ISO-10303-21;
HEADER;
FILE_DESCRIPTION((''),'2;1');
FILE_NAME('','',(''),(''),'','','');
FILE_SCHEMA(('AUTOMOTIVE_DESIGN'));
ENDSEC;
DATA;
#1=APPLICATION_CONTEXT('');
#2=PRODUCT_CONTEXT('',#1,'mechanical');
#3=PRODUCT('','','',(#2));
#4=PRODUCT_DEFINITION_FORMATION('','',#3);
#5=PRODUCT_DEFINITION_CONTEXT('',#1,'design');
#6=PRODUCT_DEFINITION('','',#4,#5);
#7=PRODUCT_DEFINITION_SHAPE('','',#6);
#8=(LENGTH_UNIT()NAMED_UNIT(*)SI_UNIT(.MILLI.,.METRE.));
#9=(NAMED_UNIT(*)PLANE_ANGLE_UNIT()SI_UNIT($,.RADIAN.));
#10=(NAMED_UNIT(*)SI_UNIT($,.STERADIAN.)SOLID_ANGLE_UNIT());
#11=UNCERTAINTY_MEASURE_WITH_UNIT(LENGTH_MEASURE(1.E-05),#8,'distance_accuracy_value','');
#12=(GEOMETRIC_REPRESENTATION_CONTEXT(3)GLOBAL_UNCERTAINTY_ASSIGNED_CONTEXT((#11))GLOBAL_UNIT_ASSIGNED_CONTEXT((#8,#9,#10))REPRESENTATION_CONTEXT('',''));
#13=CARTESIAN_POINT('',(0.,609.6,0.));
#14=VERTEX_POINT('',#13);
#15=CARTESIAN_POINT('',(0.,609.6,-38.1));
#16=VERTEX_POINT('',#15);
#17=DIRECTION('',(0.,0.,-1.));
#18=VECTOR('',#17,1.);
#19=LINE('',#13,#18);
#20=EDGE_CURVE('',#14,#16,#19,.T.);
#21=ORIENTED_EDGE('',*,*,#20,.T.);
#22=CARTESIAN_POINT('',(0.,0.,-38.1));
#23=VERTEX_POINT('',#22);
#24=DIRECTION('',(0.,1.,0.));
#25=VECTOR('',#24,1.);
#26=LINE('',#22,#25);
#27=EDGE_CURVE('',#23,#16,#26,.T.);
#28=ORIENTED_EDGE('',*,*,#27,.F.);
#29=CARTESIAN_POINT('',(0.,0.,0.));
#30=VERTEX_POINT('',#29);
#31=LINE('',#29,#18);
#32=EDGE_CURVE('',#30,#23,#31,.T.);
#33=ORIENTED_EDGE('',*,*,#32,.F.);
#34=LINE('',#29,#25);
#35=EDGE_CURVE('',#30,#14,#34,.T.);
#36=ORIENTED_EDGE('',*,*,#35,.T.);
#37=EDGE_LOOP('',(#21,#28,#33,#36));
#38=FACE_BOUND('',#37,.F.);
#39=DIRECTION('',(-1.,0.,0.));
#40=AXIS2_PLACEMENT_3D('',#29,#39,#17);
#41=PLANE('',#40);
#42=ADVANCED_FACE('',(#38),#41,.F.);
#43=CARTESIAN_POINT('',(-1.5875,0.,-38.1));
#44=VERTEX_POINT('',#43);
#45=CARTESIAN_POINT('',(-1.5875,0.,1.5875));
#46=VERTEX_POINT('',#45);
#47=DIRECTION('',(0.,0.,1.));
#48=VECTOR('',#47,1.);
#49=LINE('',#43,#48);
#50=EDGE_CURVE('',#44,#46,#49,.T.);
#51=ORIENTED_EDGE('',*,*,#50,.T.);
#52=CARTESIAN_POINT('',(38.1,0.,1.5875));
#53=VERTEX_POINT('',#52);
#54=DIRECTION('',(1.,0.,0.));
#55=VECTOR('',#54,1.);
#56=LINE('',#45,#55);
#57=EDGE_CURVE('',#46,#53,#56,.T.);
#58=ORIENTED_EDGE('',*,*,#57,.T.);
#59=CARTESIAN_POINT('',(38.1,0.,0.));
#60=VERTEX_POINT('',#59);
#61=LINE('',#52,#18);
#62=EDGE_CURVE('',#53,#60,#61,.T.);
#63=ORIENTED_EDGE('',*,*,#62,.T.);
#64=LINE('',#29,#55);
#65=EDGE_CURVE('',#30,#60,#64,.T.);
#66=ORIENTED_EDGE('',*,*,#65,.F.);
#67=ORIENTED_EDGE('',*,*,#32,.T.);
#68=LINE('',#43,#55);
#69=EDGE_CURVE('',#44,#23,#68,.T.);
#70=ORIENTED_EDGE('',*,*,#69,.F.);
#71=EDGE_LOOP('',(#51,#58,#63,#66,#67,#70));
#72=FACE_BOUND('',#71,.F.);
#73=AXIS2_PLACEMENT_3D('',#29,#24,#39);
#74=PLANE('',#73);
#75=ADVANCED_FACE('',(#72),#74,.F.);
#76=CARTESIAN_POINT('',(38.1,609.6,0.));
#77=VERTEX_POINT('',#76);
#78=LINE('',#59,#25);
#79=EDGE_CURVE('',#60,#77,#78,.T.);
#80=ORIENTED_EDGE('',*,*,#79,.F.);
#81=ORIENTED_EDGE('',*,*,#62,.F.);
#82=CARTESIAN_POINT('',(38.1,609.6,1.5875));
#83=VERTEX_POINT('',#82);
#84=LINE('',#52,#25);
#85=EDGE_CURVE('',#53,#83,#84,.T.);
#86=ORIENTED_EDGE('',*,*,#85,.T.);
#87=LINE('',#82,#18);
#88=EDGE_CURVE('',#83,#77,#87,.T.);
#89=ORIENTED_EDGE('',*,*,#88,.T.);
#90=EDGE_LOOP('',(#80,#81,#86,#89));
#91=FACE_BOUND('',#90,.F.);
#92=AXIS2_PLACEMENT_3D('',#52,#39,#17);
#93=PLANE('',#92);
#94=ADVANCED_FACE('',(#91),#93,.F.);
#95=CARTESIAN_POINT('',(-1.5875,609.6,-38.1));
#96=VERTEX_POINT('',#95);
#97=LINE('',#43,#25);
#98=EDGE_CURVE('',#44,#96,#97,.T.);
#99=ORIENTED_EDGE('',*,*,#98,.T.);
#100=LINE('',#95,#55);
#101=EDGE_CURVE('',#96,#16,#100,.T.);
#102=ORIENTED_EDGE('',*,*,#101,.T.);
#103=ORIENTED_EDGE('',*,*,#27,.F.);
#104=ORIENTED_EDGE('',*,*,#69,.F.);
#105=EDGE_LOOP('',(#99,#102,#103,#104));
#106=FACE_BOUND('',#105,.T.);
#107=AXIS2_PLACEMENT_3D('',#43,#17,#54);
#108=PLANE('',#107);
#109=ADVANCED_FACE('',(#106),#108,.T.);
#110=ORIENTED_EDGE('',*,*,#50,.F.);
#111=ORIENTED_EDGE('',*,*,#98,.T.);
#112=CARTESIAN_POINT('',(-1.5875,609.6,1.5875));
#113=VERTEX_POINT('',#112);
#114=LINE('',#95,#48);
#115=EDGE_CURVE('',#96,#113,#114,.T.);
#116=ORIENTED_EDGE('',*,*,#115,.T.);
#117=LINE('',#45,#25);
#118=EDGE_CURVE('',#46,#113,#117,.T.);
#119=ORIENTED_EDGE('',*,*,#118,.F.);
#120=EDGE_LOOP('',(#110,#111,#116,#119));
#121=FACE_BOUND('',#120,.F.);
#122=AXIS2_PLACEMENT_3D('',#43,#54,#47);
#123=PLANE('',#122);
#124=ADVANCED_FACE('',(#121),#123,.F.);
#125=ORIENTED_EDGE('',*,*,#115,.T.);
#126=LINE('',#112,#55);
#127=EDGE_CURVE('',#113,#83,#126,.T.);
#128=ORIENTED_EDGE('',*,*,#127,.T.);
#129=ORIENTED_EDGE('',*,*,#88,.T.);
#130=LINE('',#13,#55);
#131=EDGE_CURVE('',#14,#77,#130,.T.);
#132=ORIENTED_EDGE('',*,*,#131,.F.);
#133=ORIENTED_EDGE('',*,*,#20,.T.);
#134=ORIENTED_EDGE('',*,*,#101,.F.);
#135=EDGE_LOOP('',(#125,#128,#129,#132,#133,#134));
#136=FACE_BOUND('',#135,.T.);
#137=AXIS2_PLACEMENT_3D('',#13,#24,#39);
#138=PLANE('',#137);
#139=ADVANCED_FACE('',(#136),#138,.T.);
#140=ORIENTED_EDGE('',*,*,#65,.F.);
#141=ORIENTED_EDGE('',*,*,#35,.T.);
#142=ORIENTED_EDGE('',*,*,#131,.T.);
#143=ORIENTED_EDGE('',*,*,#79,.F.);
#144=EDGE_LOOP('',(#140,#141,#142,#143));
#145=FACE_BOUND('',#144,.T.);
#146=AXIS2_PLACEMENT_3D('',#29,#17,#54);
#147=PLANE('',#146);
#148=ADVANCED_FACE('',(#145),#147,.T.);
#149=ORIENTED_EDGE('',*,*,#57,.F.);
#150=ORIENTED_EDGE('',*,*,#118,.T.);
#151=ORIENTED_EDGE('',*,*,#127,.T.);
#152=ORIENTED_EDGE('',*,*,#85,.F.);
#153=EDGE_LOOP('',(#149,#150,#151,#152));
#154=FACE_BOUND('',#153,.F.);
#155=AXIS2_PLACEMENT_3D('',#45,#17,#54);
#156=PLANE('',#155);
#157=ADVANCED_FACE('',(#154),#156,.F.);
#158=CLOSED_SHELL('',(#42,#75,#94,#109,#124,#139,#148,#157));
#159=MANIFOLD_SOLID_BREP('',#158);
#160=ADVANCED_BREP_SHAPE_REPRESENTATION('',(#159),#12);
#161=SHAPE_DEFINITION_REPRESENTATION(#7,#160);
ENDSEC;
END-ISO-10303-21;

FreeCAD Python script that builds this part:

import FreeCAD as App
import Part
import Sketcher
Q = App.Units.Quantity


def add_polygon(sketch, points):
    """Adds a closed chain of lines whose ends are joined by coincident constraints."""
    first, n = sketch.GeometryCount, len(points)
    for a, b in zip(points, points[1:] + points[:1]):
        sketch.addGeometry(Part.LineSegment(App.Vector(*a, 0), App.Vector(*b, 0)), False)
    for i in range(n):
        sketch.addConstraint(Sketcher.Constraint("Coincident", first + i, 2, first + (i + 1) % n, 1))

doc = App.newDocument("Part")
body = doc.addObject("PartDesign::Body", "Body")

# Sketch on XZ plane
sketch1 = body.newObject("Sketcher::SketchObject", "Sketch")
sketch1.AttachmentSupport = (doc.getObject("XZ_Plane"), [""])
sketch1.MapMode = "FlatFace"
add_polygon(sketch1, [(38.1, 0), (0, 0), (0, -38.1), (-1.5875, -38.1), (-1.5875, 1.5875), (38.1, 1.5875)])  # lines 0-5
sketch1.addConstraint(Sketcher.Constraint("Horizontal", 0))
sketch1.addConstraint(Sketcher.Constraint("Vertical", 1))
sketch1.addConstraint(Sketcher.Constraint("Horizontal", 2))
sketch1.addConstraint(Sketcher.Constraint("Vertical", 3))
sketch1.addConstraint(Sketcher.Constraint("Horizontal", 4))
sketch1.addConstraint(Sketcher.Constraint("Vertical", 5))
sketch1.addConstraint(Sketcher.Constraint("Coincident", 0, 2, -1, 1))
sketch1.addConstraint(Sketcher.Constraint("Equal", 0, 1))
sketch1.addConstraint(Sketcher.Constraint("Equal", 4, 3))
sketch1.addConstraint(Sketcher.Constraint("DistanceX", 0, 2, 0, 1, Q("1.5 in")))
sketch1.addConstraint(Sketcher.Constraint("DistanceX", 2, 2, 2, 1, Q("0.0625 in")))
pad1 = body.newObject("PartDesign::Pad", "Pad")
pad1.Profile = sketch1
pad1.Length = Q("24 in")
pad1.Reversed = True

doc.recompute()
